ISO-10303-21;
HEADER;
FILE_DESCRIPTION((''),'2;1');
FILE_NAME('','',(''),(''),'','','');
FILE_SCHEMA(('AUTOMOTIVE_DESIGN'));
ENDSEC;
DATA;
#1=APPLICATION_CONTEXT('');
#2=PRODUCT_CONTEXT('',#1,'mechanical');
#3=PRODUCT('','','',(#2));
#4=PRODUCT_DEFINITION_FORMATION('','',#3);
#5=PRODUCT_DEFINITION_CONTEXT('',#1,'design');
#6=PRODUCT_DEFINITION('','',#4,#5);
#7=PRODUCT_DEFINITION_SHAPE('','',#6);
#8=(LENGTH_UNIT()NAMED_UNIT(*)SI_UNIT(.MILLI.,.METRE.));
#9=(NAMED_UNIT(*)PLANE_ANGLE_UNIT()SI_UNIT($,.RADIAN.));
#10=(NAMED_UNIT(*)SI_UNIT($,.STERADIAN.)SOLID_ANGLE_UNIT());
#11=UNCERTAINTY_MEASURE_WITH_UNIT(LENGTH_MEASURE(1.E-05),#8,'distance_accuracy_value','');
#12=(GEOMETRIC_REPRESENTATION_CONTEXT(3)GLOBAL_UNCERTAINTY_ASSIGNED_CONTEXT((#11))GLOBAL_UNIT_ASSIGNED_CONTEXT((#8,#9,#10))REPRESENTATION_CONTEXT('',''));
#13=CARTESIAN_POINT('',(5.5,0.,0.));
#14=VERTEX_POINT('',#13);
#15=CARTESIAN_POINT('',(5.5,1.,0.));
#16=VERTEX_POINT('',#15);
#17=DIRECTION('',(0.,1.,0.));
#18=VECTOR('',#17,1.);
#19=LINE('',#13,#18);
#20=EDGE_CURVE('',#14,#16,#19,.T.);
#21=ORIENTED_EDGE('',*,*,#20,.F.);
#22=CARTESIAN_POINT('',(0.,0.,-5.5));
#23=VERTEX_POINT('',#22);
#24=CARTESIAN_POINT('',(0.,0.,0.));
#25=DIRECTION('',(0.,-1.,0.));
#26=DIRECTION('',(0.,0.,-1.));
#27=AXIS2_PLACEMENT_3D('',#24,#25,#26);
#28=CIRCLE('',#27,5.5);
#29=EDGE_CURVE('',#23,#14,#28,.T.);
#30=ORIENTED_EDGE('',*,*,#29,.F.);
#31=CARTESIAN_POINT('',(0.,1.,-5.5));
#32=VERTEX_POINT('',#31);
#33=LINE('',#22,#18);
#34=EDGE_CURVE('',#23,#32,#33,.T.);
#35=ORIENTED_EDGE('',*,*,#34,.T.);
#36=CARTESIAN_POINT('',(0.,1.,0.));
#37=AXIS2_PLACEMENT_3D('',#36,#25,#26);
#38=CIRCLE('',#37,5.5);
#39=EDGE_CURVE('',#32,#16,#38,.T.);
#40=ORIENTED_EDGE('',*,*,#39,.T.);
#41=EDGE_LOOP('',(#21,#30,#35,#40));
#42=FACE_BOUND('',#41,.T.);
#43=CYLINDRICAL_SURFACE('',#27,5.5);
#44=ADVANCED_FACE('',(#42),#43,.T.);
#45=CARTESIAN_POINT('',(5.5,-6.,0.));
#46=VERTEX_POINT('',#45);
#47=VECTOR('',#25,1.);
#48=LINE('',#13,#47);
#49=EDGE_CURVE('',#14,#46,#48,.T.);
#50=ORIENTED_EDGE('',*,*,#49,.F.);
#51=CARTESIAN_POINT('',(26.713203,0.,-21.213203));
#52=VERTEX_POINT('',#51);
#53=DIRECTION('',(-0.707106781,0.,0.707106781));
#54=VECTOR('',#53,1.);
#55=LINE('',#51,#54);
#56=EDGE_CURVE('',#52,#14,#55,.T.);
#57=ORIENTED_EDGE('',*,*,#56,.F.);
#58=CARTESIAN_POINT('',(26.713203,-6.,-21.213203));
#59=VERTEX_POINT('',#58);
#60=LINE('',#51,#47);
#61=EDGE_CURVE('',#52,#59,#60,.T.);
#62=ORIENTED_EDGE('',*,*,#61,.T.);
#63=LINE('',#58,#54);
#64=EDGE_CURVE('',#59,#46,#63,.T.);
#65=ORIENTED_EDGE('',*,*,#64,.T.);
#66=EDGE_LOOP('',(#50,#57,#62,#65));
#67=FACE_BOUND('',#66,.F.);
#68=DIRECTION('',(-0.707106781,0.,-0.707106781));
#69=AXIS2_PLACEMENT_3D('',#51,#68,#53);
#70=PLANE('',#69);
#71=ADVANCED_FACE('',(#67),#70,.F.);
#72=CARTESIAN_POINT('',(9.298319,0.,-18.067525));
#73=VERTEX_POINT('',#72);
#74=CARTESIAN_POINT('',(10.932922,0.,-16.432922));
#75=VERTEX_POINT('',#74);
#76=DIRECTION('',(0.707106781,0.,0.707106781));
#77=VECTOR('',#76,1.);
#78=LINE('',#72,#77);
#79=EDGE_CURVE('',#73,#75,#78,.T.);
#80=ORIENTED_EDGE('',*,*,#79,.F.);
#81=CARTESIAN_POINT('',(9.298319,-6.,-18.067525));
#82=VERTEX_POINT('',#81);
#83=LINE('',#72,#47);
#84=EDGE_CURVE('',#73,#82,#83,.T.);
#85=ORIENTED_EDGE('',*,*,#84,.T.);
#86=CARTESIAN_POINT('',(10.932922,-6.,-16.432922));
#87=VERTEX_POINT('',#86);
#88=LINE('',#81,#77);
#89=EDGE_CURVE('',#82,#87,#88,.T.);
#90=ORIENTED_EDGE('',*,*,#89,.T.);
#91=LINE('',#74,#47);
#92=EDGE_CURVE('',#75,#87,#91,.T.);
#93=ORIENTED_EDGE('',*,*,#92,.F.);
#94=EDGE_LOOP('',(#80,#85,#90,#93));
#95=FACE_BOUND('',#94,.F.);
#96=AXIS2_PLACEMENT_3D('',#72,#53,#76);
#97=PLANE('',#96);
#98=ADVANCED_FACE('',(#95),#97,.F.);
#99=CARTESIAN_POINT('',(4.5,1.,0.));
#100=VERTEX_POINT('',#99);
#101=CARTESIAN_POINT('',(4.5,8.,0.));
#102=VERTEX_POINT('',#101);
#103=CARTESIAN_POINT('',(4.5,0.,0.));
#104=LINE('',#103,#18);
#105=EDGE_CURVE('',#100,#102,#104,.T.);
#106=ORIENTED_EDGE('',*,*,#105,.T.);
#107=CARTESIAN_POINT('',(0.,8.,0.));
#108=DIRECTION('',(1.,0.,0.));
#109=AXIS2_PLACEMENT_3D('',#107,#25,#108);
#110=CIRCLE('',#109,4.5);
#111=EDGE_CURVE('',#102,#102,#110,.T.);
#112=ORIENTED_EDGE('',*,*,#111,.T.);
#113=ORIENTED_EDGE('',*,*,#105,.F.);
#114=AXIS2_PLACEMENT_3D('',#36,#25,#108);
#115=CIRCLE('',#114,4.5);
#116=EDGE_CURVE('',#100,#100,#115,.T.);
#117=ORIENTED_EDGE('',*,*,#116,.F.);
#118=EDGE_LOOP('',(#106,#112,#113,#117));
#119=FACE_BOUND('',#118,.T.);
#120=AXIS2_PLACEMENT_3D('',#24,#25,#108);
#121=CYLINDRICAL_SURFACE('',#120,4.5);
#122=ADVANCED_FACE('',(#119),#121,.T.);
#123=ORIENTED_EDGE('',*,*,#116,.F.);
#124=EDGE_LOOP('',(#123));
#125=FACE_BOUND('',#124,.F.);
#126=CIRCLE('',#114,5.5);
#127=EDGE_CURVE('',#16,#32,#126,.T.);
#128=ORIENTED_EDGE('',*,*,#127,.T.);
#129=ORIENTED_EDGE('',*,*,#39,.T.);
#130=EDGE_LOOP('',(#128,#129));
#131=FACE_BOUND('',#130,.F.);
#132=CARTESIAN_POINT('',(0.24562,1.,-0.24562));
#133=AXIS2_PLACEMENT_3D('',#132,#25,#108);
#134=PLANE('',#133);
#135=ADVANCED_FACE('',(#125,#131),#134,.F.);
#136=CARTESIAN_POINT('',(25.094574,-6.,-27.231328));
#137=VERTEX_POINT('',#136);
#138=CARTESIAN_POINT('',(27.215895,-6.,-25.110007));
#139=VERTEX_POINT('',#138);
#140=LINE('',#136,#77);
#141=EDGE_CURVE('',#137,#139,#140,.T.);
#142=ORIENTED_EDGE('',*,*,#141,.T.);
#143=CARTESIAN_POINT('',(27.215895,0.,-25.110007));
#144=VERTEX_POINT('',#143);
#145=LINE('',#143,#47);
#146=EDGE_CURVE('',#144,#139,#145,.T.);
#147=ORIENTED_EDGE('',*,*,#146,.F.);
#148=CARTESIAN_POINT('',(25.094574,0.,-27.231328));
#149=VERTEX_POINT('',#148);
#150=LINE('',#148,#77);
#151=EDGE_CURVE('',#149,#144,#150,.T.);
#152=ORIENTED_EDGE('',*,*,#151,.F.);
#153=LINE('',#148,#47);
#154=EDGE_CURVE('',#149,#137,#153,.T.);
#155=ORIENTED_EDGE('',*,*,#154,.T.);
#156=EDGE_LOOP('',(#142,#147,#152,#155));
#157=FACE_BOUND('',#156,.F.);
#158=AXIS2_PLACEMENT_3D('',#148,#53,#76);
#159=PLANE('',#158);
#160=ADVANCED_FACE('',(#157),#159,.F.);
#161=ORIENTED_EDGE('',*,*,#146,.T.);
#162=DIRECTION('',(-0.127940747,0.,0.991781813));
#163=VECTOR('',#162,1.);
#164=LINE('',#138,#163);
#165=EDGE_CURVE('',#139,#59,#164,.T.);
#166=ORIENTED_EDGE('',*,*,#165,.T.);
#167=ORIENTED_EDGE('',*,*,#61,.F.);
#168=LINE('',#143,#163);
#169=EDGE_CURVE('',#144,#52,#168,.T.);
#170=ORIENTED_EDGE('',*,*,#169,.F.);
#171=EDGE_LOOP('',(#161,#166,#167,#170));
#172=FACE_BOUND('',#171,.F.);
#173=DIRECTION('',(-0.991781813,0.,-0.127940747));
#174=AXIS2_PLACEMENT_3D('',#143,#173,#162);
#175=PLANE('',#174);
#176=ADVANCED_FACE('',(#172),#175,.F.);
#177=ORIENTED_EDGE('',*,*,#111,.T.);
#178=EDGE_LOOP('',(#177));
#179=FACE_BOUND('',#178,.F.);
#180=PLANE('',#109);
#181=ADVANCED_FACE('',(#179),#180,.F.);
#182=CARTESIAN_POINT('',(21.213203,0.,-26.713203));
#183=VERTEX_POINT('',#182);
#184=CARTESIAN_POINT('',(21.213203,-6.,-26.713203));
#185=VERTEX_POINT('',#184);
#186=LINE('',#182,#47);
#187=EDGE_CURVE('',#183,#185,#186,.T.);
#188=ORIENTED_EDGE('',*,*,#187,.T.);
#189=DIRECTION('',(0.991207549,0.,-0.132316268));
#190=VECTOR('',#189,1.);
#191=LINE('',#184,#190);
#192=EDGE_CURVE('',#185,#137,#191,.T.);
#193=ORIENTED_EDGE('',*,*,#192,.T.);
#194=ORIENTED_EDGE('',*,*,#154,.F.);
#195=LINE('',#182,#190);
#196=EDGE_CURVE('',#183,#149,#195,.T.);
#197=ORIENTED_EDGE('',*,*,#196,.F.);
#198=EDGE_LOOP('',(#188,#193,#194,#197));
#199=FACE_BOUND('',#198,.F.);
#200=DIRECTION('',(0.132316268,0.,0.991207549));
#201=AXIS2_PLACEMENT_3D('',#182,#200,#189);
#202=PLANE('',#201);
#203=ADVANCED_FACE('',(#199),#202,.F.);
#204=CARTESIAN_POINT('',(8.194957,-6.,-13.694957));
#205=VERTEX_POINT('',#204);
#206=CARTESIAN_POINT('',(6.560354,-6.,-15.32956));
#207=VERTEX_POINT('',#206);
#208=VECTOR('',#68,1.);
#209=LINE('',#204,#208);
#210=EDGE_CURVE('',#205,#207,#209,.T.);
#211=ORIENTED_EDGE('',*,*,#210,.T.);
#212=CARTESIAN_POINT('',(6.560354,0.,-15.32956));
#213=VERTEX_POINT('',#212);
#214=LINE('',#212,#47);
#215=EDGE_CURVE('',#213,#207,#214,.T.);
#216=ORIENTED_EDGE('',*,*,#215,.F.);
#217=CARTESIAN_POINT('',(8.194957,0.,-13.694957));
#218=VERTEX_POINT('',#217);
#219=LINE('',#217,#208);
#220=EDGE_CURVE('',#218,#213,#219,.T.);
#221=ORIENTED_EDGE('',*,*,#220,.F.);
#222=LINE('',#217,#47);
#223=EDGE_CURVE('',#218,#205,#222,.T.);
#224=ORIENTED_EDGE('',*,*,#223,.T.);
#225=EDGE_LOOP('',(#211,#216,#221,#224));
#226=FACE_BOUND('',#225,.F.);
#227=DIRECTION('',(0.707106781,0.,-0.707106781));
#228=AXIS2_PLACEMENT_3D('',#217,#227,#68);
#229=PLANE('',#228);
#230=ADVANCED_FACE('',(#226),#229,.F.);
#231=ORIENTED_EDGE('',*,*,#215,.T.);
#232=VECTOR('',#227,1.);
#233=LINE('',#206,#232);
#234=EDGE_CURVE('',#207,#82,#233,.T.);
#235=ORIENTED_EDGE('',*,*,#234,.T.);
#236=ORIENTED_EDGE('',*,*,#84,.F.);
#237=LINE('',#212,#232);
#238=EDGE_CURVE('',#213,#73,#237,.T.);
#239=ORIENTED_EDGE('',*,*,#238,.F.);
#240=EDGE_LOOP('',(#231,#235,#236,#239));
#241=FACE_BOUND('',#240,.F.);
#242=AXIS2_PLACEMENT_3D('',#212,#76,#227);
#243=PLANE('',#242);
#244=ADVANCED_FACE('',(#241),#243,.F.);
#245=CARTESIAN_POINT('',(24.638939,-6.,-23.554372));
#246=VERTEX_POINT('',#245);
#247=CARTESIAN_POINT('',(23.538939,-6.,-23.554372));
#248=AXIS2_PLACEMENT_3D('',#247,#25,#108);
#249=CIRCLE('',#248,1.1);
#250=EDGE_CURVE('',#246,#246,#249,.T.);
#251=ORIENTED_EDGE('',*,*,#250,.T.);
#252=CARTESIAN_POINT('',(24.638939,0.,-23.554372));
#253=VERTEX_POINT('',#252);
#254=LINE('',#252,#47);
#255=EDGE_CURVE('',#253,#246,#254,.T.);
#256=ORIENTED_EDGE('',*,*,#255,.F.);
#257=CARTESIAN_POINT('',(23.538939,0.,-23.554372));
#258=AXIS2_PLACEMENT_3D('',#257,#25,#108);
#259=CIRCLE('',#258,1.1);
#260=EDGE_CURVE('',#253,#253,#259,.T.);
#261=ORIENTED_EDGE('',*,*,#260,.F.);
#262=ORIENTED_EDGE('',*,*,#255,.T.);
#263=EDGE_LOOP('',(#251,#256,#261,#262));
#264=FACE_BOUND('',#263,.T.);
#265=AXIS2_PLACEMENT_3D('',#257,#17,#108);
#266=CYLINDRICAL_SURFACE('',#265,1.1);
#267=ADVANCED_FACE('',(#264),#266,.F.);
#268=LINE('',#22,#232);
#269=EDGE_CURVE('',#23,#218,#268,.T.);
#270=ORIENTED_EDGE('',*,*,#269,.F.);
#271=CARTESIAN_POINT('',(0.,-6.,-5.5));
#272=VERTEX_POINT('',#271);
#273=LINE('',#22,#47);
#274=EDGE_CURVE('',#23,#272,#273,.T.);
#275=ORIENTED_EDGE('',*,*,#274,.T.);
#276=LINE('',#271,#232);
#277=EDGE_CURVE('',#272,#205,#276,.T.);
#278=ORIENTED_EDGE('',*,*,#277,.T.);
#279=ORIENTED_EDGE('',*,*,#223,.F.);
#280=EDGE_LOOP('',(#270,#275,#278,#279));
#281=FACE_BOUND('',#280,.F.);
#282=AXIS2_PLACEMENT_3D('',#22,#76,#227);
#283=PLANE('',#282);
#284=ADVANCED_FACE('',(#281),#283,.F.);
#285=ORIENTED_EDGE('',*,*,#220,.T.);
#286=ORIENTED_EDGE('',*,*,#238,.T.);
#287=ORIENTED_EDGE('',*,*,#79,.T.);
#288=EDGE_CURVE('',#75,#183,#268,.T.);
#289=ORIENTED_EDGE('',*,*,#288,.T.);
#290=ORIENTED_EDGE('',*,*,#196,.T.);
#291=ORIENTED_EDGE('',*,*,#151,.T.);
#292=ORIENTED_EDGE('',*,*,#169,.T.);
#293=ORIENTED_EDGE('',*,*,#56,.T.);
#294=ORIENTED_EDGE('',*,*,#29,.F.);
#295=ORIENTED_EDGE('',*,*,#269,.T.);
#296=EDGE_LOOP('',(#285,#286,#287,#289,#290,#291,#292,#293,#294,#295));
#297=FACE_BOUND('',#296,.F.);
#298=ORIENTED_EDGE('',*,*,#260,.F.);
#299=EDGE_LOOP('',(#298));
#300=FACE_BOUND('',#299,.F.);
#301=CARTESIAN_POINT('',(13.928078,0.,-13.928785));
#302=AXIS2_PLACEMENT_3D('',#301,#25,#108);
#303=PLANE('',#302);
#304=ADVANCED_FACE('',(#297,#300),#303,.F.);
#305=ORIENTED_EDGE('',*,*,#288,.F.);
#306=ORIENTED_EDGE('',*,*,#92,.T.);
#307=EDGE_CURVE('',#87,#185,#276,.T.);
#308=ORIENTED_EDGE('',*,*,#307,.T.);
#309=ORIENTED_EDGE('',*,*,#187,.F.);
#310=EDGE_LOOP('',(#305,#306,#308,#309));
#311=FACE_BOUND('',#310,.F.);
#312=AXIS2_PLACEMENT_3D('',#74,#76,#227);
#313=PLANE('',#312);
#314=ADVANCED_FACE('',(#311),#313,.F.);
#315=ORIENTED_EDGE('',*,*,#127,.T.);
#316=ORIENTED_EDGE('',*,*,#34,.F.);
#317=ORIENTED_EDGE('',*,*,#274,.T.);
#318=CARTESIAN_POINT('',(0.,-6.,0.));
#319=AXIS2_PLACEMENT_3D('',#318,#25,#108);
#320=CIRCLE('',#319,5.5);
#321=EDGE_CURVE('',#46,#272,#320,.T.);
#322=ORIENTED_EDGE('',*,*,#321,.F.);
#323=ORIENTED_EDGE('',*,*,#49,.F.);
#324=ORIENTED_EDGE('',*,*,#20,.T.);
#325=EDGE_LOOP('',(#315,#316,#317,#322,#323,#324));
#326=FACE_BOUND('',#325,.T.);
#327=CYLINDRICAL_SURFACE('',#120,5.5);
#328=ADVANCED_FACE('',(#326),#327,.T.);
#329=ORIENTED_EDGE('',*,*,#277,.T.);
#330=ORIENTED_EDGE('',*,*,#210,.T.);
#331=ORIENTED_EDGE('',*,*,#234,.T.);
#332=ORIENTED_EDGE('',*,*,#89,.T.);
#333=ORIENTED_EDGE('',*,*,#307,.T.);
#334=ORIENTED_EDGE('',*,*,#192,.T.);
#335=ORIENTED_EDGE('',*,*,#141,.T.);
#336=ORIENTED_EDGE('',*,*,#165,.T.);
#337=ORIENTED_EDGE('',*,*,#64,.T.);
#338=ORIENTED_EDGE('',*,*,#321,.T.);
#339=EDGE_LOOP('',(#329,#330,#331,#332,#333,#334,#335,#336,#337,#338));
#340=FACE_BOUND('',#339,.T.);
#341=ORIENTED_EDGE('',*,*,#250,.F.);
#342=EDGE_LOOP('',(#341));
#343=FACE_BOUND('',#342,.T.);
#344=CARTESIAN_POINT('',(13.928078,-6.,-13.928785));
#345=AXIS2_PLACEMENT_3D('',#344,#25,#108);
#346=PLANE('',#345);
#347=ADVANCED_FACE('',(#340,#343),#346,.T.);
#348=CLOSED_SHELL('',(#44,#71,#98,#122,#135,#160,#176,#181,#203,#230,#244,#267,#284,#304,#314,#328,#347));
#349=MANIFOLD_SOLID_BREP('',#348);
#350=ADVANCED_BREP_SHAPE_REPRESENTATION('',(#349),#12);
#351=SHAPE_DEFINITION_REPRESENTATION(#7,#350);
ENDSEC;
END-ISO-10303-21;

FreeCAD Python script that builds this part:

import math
import FreeCAD as App
import Part
import Sketcher
Q = App.Units.Quantity

doc = App.newDocument("Part")
params = doc.addObject("Spreadsheet::Sheet", "Params")
for row, (alias, value) in enumerate([
    ("sketch1_diameter", "2.2 mm"),
    ("sketch1_radius", "5.5 mm"),
    ("sketch1_length", "30 mm"),
    ("sketch1_length2", "3 mm"),
    ("pad1_length", "6 mm"),
    ("sketch2_radius", "5.5 mm"),
    ("pad2_length", "1 mm"),
    ("sketch3_diameter", "9 mm"),
    ("pad3_length", "8 mm"),
], start=1):
    params.set(f"A{row}", alias)
    params.set(f"B{row}", "=" + value)
    params.setAlias(f"B{row}", alias)

body = doc.addObject("PartDesign::Body", "Body")

# Sketch on XZ plane
sketch1 = body.newObject("Sketcher::SketchObject", "Sketch")
sketch1.AttachmentSupport = (doc.getObject("XZ_Plane"), [""])
sketch1.MapMode = "FlatFace"
sketch1.addGeometry([
    Part.LineSegment(App.Vector(26.7, -21.2, 0), App.Vector(5.5, 0, 0)),  # 0
    Part.ArcOfCircle(Part.Circle(App.Vector(0, 0, 0), App.Vector(0, 0, 1), 5.5), math.radians(0), math.radians(270)),  # 1
    Part.LineSegment(App.Vector(0, -5.5, 0), App.Vector(8.2, -13.7, 0)),  # 2
    Part.LineSegment(App.Vector(8.2, -13.7, 0), App.Vector(6.6, -15.3, 0)),  # 3
    Part.LineSegment(App.Vector(6.6, -15.3, 0), App.Vector(9.3, -18.1, 0)),  # 4
    Part.LineSegment(App.Vector(9.3, -18.1, 0), App.Vector(10.9, -16.4, 0)),  # 5
    Part.LineSegment(App.Vector(10.9, -16.4, 0), App.Vector(21.2, -26.7, 0)),  # 6
    Part.LineSegment(App.Vector(21.2, -26.7, 0), App.Vector(25.1, -27.2, 0)),  # 7
    Part.LineSegment(App.Vector(25.1, -27.2, 0), App.Vector(27.2, -25.1, 0)),  # 8
    Part.LineSegment(App.Vector(27.2, -25.1, 0), App.Vector(26.7, -21.2, 0)),  # 9
    Part.Circle(App.Vector(23.5, -23.6, 0), App.Vector(0, 0, 1), 1.1),  # 10
], False)
sketch1.addConstraint([
    Sketcher.Constraint("Coincident", 0, 2, 1, 1),
    Sketcher.Constraint("Coincident", 1, 2, 2, 1),
    Sketcher.Constraint("Coincident", 2, 2, 3, 1),
    Sketcher.Constraint("Coincident", 3, 2, 4, 1),
    Sketcher.Constraint("Coincident", 4, 2, 5, 1),
    Sketcher.Constraint("Coincident", 5, 2, 6, 1),
    Sketcher.Constraint("Coincident", 6, 2, 7, 1),
    Sketcher.Constraint("Coincident", 7, 2, 8, 1),
    Sketcher.Constraint("Coincident", 8, 2, 9, 1),
    Sketcher.Constraint("Coincident", 9, 2, 0, 1),
    Sketcher.Constraint("Coincident", 1, 3, -1, 1),
    Sketcher.Constraint("PointOnObject", 0, 2, -1),
    Sketcher.Constraint("PointOnObject", 1, 2, -2),
    Sketcher.Constraint("Parallel", 0, 2),
    Sketcher.Constraint("Perpendicular", 2, 3),
    Sketcher.Constraint("Perpendicular", 3, 4),
    Sketcher.Constraint("Perpendicular", 4, 5),
    Sketcher.Constraint("Perpendicular", 5, 6),
    Sketcher.Constraint("Perpendicular", 6, 8),
    Sketcher.Constraint("Equal", 3, 5),
    Sketcher.Constraint("Diameter", 10, 2.2),
    Sketcher.Constraint("Radius", 1, 5.5),
    Sketcher.Constraint("Angle", 0, Q("135 deg")),
    Sketcher.Constraint("Distance", 0, 30.0),
    Sketcher.Constraint("Distance", 8, 3.0),
    Sketcher.Constraint("DistanceX", 6, 2, 9, 2, 5.5),
    Sketcher.Constraint("Distance", 7, 3.9158),
    Sketcher.Constraint("Distance", 2, 11.589419),
    Sketcher.Constraint("DistanceX", -1, 1, 10, 3, 23.538939),
    Sketcher.Constraint("DistanceY", 3, 2, -1, 1, 15.32956),
    Sketcher.Constraint("DistanceX", -1, 1, 4, 2, 9.298319),
    Sketcher.Constraint("DistanceY", 10, 3, 5, 2, 7.12145),
    Sketcher.Constraint("DistanceX", 6, 2, 7, 2, 3.881371),
])
sketch1.setExpression("Constraints[20]", "Params.sketch1_diameter")
sketch1.setExpression("Constraints[21]", "Params.sketch1_radius")
sketch1.setExpression("Constraints[23]", "Params.sketch1_length")
sketch1.setExpression("Constraints[24]", "Params.sketch1_length2")
pad1 = body.newObject("PartDesign::Pad", "Pad")
pad1.Profile = sketch1
pad1.setExpression("Length", "Params.pad1_length")

# Sketch on XZ plane
sketch2 = body.newObject("Sketcher::SketchObject", "Sketch001")
sketch2.AttachmentSupport = (doc.getObject("XZ_Plane"), [""])
sketch2.MapMode = "FlatFace"
sketch2.addGeometry([
    Part.ArcOfCircle(Part.Circle(App.Vector(0, 0, 0), App.Vector(0, 0, 1), 6), math.radians(-90), math.radians(0)),
    Part.ArcOfCircle(Part.Circle(App.Vector(0, 0, 0), App.Vector(0, 0, 1), 6), math.radians(0), math.radians(270)),
], False)
sketch2.addConstraint([
    Sketcher.Constraint("Tangent", 0, 1, 1, 2),
    Sketcher.Constraint("Coincident", 1, 1, 0, 2),
    Sketcher.Constraint("Coincident", 0, 3, -1, 1),
    Sketcher.Constraint("PointOnObject", 0, 1, -2),
    Sketcher.Constraint("PointOnObject", 1, 1, -1),
    Sketcher.Constraint("Radius", 0, 5.5),
])
sketch2.setExpression("Constraints[5]", "Params.sketch2_radius")
pad2 = body.newObject("PartDesign::Pad", "Pad001")
pad2.Profile = sketch2
pad2.setExpression("Length", "Params.pad2_length")
pad2.Reversed = True

# Sketch on XZ plane
sketch3 = body.newObject("Sketcher::SketchObject", "Sketch002")
sketch3.AttachmentSupport = (doc.getObject("XZ_Plane"), [""])
sketch3.MapMode = "FlatFace"
sketch3.addGeometry(Part.Circle(App.Vector(0, 0, 0), App.Vector(0, 0, 1), 4.5), False)
sketch3.addConstraint([
    Sketcher.Constraint("Coincident", 0, 3, -1, 1),
    Sketcher.Constraint("Diameter", 0, 9.0),
])
sketch3.setExpression("Constraints[1]", "Params.sketch3_diameter")
pad3 = body.newObject("PartDesign::Pad", "Pad002")
pad3.Profile = sketch3
pad3.setExpression("Length", "Params.pad3_length")
pad3.Reversed = True

doc.recompute()
